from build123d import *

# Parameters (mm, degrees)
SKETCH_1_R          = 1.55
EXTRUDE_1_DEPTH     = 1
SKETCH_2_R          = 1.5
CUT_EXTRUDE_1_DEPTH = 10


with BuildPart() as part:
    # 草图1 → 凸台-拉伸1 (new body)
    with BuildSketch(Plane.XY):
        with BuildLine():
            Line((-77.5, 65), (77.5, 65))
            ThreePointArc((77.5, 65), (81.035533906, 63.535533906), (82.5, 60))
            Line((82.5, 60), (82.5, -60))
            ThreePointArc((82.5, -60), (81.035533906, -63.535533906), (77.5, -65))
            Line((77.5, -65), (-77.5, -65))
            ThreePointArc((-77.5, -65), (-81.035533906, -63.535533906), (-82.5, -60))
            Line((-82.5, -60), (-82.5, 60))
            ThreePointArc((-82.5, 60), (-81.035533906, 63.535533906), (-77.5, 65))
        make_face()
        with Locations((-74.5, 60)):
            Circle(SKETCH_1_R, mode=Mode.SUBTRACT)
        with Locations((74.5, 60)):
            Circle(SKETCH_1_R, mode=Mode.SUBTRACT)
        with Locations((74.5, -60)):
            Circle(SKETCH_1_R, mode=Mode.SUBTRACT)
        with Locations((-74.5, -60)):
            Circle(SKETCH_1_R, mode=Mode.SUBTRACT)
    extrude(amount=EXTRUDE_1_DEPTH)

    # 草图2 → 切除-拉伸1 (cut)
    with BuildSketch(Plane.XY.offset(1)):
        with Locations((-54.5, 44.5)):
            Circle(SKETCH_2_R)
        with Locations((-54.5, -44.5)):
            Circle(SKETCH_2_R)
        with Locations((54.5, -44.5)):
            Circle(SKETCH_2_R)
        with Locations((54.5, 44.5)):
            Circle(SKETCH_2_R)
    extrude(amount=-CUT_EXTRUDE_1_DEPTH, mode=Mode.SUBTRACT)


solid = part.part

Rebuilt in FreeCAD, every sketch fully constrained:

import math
import FreeCAD as App
import Part
import Sketcher

V = App.Vector

doc = App.newDocument("Part")
body = doc.addObject("PartDesign::Body", "Body")

# Sketch on XY plane
sketch1 = body.newObject("Sketcher::SketchObject", "Sketch")
sketch1.AttachmentSupport = (doc.getObject("XY_Plane"), [""])
sketch1.MapMode = "FlatFace"
sketch1.addGeometry(Part.LineSegment(V(77.5, 65, 0), V(-77.5, 65, 0)), False)
sketch1.addGeometry(Part.ArcOfCircle(Part.Circle(V(-77.5, 60, 0), V(0, 0, 1), 5), math.radians(90), math.radians(180)), False)
sketch1.addGeometry(Part.LineSegment(V(-82.5, 60, 0), V(-82.5, -60, 0)), False)
sketch1.addGeometry(Part.ArcOfCircle(Part.Circle(V(-77.5, -60, 0), V(0, 0, 1), 5), math.radians(180), math.radians(270)), False)
sketch1.addGeometry(Part.LineSegment(V(-77.5, -65, 0), V(77.5, -65, 0)), False)
sketch1.addGeometry(Part.ArcOfCircle(Part.Circle(V(77.5, -60, 0), V(0, 0, 1), 5), math.radians(-90), math.radians(0)), False)
sketch1.addGeometry(Part.LineSegment(V(82.5, -60, 0), V(82.5, 60, 0)), False)
sketch1.addGeometry(Part.ArcOfCircle(Part.Circle(V(77.5, 60, 0), V(0, 0, 1), 5), math.radians(0), math.radians(90)), False)
sketch1.addGeometry(Part.Circle(V(74.5, -60, 0), V(0, 0, 1), 1.6), False)
sketch1.addGeometry(Part.Circle(V(-74.5, -60, 0), V(0, 0, 1), 1.6), False)
sketch1.addGeometry(Part.Circle(V(74.5, 60, 0), V(0, 0, 1), 1.6), False)
sketch1.addGeometry(Part.Circle(V(-74.5, 60, 0), V(0, 0, 1), 1.6), False)
sketch1.addConstraint(Sketcher.Constraint("Tangent", 0, 2, 1, 1))
sketch1.addConstraint(Sketcher.Constraint("Tangent", 1, 2, 2, 1))
sketch1.addConstraint(Sketcher.Constraint("Tangent", 2, 2, 3, 1))
sketch1.addConstraint(Sketcher.Constraint("Tangent", 3, 2, 4, 1))
sketch1.addConstraint(Sketcher.Constraint("Tangent", 4, 2, 5, 1))
sketch1.addConstraint(Sketcher.Constraint("Tangent", 5, 2, 6, 1))
sketch1.addConstraint(Sketcher.Constraint("Tangent", 6, 2, 7, 1))
sketch1.addConstraint(Sketcher.Constraint("Tangent", 7, 2, 0, 1))
sketch1.addConstraint(Sketcher.Constraint("Horizontal", 0))
sketch1.addConstraint(Sketcher.Constraint("Vertical", 2))
sketch1.addConstraint(Sketcher.Constraint("Horizontal", 4))
sketch1.addConstraint(Sketcher.Constraint("Vertical", 6))
sketch1.addConstraint(Sketcher.Constraint("Equal", 1, 3))
sketch1.addConstraint(Sketcher.Constraint("Equal", 3, 5))
sketch1.addConstraint(Sketcher.Constraint("Equal", 5, 7))
sketch1.addConstraint(Sketcher.Constraint("Equal", 8, 9))
sketch1.addConstraint(Sketcher.Constraint("Equal", 9, 10))
sketch1.addConstraint(Sketcher.Constraint("Equal", 10, 11))
sketch1.addConstraint(Sketcher.Constraint("Symmetric", 1, 3, 5, 3, -1, 1))
sketch1.addConstraint(Sketcher.Constraint("Symmetric", 9, 3, 10, 3, -1, 1))
sketch1.addConstraint(Sketcher.Constraint("Symmetric", 8, 3, 11, 3, -1, 1))
sketch1.addConstraint(Sketcher.Constraint("Symmetric", 8, 3, 9, 3, -2))
sketch1.addConstraint(Sketcher.Constraint("Horizontal", 5, 3, 8, 3))
sketch1.addConstraint(Sketcher.Constraint("Radius", 1, 5.0))
sketch1.addConstraint(Sketcher.Constraint("Diameter", 8, 3.1))
sketch1.addConstraint(Sketcher.Constraint("DistanceX", 0, 2, 0, 1, 155.0))
sketch1.addConstraint(Sketcher.Constraint("DistanceY", 2, 2, 2, 1, 120.0))
sketch1.addConstraint(Sketcher.Constraint("DistanceX", 8, 3, 5, 3, 3.0))
pad1 = body.newObject("PartDesign::Pad", "Pad")
pad1.Profile = sketch1
pad1.Length = 1

# Sketch on XY plane
sketch2 = body.newObject("Sketcher::SketchObject", "Sketch001")
sketch2.AttachmentSupport = (doc.getObject("XY_Plane"), [""])
sketch2.MapMode = "FlatFace"
sketch2.AttachmentOffset = App.Placement(V(0, 0, 1), App.Rotation())
sketch2.addGeometry(Part.Circle(V(-54.5, 44.5, 0), V(0, 0, 1), 1.5), False)
sketch2.addGeometry(Part.Circle(V(-54.5, -44.5, 0), V(0, 0, 1), 1.5), False)
sketch2.addGeometry(Part.Circle(V(54.5, -44.5, 0), V(0, 0, 1), 1.5), False)
sketch2.addGeometry(Part.Circle(V(54.5, 44.5, 0), V(0, 0, 1), 1.5), False)
sketch2.addConstraint(Sketcher.Constraint("Equal", 0, 1))
sketch2.addConstraint(Sketcher.Constraint("Equal", 1, 2))
sketch2.addConstraint(Sketcher.Constraint("Equal", 2, 3))
sketch2.addConstraint(Sketcher.Constraint("Symmetric", 0, 3, 2, 3, -1, 1))
sketch2.addConstraint(Sketcher.Constraint("Symmetric", 1, 3, 3, 3, -1, 1))
sketch2.addConstraint(Sketcher.Constraint("Symmetric", 1, 3, 2, 3, -2))
sketch2.addConstraint(Sketcher.Constraint("Diameter", 0, 3.0))
sketch2.addConstraint(Sketcher.Constraint("DistanceY", 1, 3, 0, 3, 89.0))
sketch2.addConstraint(Sketcher.Constraint("DistanceX", 1, 3, 2, 3, 109.0))
pocket1 = body.newObject("PartDesign::Pocket", "Pocket")
pocket1.Profile = sketch2
pocket1.Length = 10

doc.recompute()
